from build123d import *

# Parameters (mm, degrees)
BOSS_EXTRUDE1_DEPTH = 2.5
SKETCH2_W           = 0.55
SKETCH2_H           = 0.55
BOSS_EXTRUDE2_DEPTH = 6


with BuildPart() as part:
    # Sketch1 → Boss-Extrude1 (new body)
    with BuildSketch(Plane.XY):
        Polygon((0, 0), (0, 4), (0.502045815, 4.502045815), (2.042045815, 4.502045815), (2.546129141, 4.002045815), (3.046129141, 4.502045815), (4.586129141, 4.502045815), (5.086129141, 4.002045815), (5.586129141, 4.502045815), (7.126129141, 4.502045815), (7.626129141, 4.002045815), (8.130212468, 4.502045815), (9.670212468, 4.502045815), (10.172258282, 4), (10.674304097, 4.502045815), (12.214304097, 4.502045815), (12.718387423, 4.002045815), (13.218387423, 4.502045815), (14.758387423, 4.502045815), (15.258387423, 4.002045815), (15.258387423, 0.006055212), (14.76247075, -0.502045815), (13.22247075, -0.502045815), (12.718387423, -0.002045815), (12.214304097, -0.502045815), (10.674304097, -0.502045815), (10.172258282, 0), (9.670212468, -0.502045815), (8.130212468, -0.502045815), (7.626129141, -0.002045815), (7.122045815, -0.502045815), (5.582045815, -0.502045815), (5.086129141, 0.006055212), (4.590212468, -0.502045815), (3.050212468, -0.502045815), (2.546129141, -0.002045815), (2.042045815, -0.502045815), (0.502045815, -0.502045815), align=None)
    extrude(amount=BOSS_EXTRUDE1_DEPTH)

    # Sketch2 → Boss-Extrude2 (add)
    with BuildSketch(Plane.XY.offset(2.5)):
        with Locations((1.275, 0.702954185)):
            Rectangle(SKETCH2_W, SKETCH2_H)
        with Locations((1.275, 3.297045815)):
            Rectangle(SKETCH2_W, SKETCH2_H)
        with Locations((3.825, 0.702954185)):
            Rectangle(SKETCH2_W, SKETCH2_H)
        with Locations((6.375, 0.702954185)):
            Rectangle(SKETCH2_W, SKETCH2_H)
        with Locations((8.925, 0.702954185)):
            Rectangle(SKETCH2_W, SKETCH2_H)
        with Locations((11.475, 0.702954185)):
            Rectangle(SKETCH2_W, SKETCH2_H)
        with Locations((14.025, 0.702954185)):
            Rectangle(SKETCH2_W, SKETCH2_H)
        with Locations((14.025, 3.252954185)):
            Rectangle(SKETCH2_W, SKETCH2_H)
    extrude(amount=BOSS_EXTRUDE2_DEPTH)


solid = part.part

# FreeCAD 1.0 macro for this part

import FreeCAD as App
import Part
import Sketcher
from FreeCAD import Vector


def add_polygon(sketch, points):
    """Adds a closed chain of lines whose ends are joined by coincident constraints."""
    first, n = sketch.GeometryCount, len(points)
    for a, b in zip(points, points[1:] + points[:1]):
        sketch.addGeometry(Part.LineSegment(App.Vector(*a, 0), App.Vector(*b, 0)), False)
    for i in range(n):
        sketch.addConstraint(Sketcher.Constraint("Coincident", first + i, 2, first + (i + 1) % n, 1))

doc = App.newDocument("Part")
body = doc.addObject("PartDesign::Body", "Body")

sketch1 = doc.addObject("Sketcher::SketchObject", "Sketch")
body.addObject(sketch1)
sketch1.AttachmentSupport = (doc.XY_Plane, [""])
sketch1.MapMode = "FlatFace"
add_polygon(sketch1, [(0, 4), (0, 0), (0.502046, -0.502046), (2.042046, -0.502046), (2.546129, -0.002046), (3.050212, -0.502046), (4.590212, -0.502046), (5.086129, 0.006055), (5.582046, -0.502046), (7.122046, -0.502046), (7.626129, -0.002046), (8.130212, -0.502046), (9.670212, -0.502046), (10.172258, 0), (10.674304, -0.502046), (12.214304, -0.502046), (12.718387, -0.002046), (13.222471, -0.502046), (14.762471, -0.502046), (15.258387, 0.006055), (15.258387, 4.002046), (14.758387, 4.502046), (13.218387, 4.502046), (12.718387, 4.002046), (12.214304, 4.502046), (10.674304, 4.502046), (10.172258, 4), (9.670212, 4.502046), (8.130212, 4.502046), (7.626129, 4.002046), (7.126129, 4.502046), (5.586129, 4.502046), (5.086129, 4.002046), (4.586129, 4.502046), (3.046129, 4.502046), (2.546129, 4.002046), (2.042046, 4.502046), (0.502046, 4.502046)])
sketch1.addConstraint([
    Sketcher.Constraint("Vertical", 0),
    Sketcher.Constraint("Horizontal", 2),
    Sketcher.Constraint("Horizontal", 5),
    Sketcher.Constraint("Horizontal", 8),
    Sketcher.Constraint("Horizontal", 11),
    Sketcher.Constraint("Horizontal", 14),
    Sketcher.Constraint("Horizontal", 17),
    Sketcher.Constraint("Vertical", 19),
    Sketcher.Constraint("Horizontal", 21),
    Sketcher.Constraint("Horizontal", 24),
    Sketcher.Constraint("Horizontal", 27),
    Sketcher.Constraint("Horizontal", 30),
    Sketcher.Constraint("Horizontal", 33),
    Sketcher.Constraint("Horizontal", 36),
    Sketcher.Constraint("Coincident", 0, 2, -1, 1),
    Sketcher.Constraint("PointOnObject", 12, 2, -1),
    Sketcher.Constraint("Parallel", 3, 9),
    Sketcher.Constraint("Parallel", 4, 10),
    Sketcher.Constraint("Perpendicular", 1, 12),
    Sketcher.Constraint("Perpendicular", 12, 13),
    Sketcher.Constraint("Parallel", 9, 15),
    Sketcher.Constraint("Parallel", 10, 16),
    Sketcher.Constraint("Parallel", 6, 18),
    Sketcher.Constraint("Parallel", 13, 20),
    Sketcher.Constraint("Perpendicular", 20, 22),
    Sketcher.Constraint("Parallel", 16, 23),
    Sketcher.Constraint("Parallel", 22, 25),
    Sketcher.Constraint("Perpendicular", 25, 26),
    Sketcher.Constraint("Parallel", 15, 28),
    Sketcher.Constraint("Parallel", 26, 29),
    Sketcher.Constraint("Perpendicular", 29, 31),
    Sketcher.Constraint("Perpendicular", 31, 32),
    Sketcher.Constraint("Perpendicular", 32, 34),
    Sketcher.Constraint("Parallel", 23, 35),
    Sketcher.Constraint("Parallel", 34, 37),
    Sketcher.Constraint("Horizontal", 2, 2, 4, 2),
    Sketcher.Constraint("Horizontal", 5, 2, 7, 2),
    Sketcher.Constraint("Horizontal", 3, 2, 9, 2),
    Sketcher.Constraint("Horizontal", 8, 2, 10, 2),
    Sketcher.Constraint("Horizontal", 11, 2, 13, 2),
    Sketcher.Constraint("Horizontal", 9, 2, 15, 2),
    Sketcher.Constraint("Horizontal", 14, 2, 16, 2),
    Sketcher.Constraint("Horizontal", 6, 2, 18, 2),
    Sketcher.Constraint("Horizontal", 19, 2, 22, 2),
    Sketcher.Constraint("Horizontal", 21, 2, 23, 2),
    Sketcher.Constraint("Horizontal", 24, 2, 26, 2),
    Sketcher.Constraint("Horizontal", 22, 2, 28, 2),
    Sketcher.Constraint("Horizontal", 27, 2, 29, 2),
    Sketcher.Constraint("Horizontal", 28, 2, 31, 2),
    Sketcher.Constraint("Horizontal", 30, 2, 32, 2),
    Sketcher.Constraint("Horizontal", 31, 2, 34, 2),
    Sketcher.Constraint("Horizontal", 33, 2, 35, 2),
    Sketcher.Constraint("Horizontal", 25, 2, 37, 2),
    Sketcher.Constraint("Vertical", 15, 2, 22, 2),
    Sketcher.Constraint("Vertical", 14, 2, 23, 2),
    Sketcher.Constraint("Vertical", 13, 2, 24, 2),
    Sketcher.Constraint("Vertical", 12, 2, 25, 2),
    Sketcher.Constraint("Vertical", 11, 2, 26, 2),
    Sketcher.Constraint("Vertical", 10, 2, 27, 2),
    Sketcher.Constraint("Vertical", 9, 2, 28, 2),
    Sketcher.Constraint("Vertical", 6, 2, 31, 2),
    Sketcher.Constraint("Vertical", 3, 2, 34, 2),
    Sketcher.Constraint("Equal", 2, 5),
    Sketcher.Constraint("Equal", 5, 8),
    Sketcher.Constraint("Equal", 8, 11),
    Sketcher.Constraint("Equal", 11, 14),
    Sketcher.Constraint("Equal", 14, 17),
    Sketcher.Constraint("Equal", 17, 21),
    Sketcher.Constraint("Equal", 27, 30),
    Sketcher.Constraint("Equal", 1, 3),
    Sketcher.Constraint("Equal", 4, 6),
    Sketcher.Constraint("DistanceY", 0, 2, 0, 1, 4.0),
    Sketcher.Constraint("DistanceX", 32, 2, 30, 2, 1.0),
    Sketcher.Constraint("DistanceX", 2, 1, 2, 2, 1.54),
    Sketcher.Constraint("Distance", 1, 0.71),
])
pad1 = doc.addObject("PartDesign::Pad", "Pad")
body.addObject(pad1)
pad1.Profile = sketch1
pad1.Length = 2.5

sketch2 = doc.addObject("Sketcher::SketchObject", "Sketch001")
body.addObject(sketch2)
sketch2.AttachmentSupport = (doc.XY_Plane, [""])
sketch2.MapMode = "FlatFace"
sketch2.AttachmentOffset = App.Placement(Vector(0, 0, 2.5), App.Rotation())
add_polygon(sketch2, [(1, 0.977954), (1, 0.427954), (1.55, 0.427954), (1.55, 0.977954)])
add_polygon(sketch2, [(1, 3.572046), (1, 3.022046), (1.55, 3.022046), (1.55, 3.572046)])
add_polygon(sketch2, [(3.55, 0.977954), (3.55, 0.427954), (4.1, 0.427954), (4.1, 0.977954)])
add_polygon(sketch2, [(6.1, 0.977954), (6.1, 0.427954), (6.65, 0.427954), (6.65, 0.977954)])
add_polygon(sketch2, [(8.65, 0.977954), (8.65, 0.427954), (9.2, 0.427954), (9.2, 0.977954)])
add_polygon(sketch2, [(11.2, 0.977954), (11.2, 0.427954), (11.75, 0.427954), (11.75, 0.977954)])
add_polygon(sketch2, [(13.75, 0.977954), (13.75, 0.427954), (14.3, 0.427954), (14.3, 0.977954)])
add_polygon(sketch2, [(13.75, 3.527954), (13.75, 2.977954), (14.3, 2.977954), (14.3, 3.527954)])
sketch2.addConstraint([
    Sketcher.Constraint("Vertical", 0),
    Sketcher.Constraint("Horizontal", 1),
    Sketcher.Constraint("Vertical", 2),
    Sketcher.Constraint("Horizontal", 3),
    Sketcher.Constraint("Vertical", 4),
    Sketcher.Constraint("Horizontal", 5),
    Sketcher.Constraint("Vertical", 6),
    Sketcher.Constraint("Horizontal", 7),
    Sketcher.Constraint("Vertical", 8),
    Sketcher.Constraint("Horizontal", 9),
    Sketcher.Constraint("Vertical", 10),
    Sketcher.Constraint("Horizontal", 11),
    Sketcher.Constraint("Vertical", 12),
    Sketcher.Constraint("Horizontal", 13),
    Sketcher.Constraint("Vertical", 14),
    Sketcher.Constraint("Horizontal", 15),
    Sketcher.Constraint("Vertical", 16),
    Sketcher.Constraint("Horizontal", 17),
    Sketcher.Constraint("Vertical", 18),
    Sketcher.Constraint("Horizontal", 19),
    Sketcher.Constraint("Vertical", 20),
    Sketcher.Constraint("Horizontal", 21),
    Sketcher.Constraint("Vertical", 22),
    Sketcher.Constraint("Horizontal", 23),
    Sketcher.Constraint("Vertical", 24),
    Sketcher.Constraint("Horizontal", 25),
    Sketcher.Constraint("Vertical", 26),
    Sketcher.Constraint("Horizontal", 27),
    Sketcher.Constraint("Vertical", 28),
    Sketcher.Constraint("Horizontal", 29),
    Sketcher.Constraint("Vertical", 30),
    Sketcher.Constraint("Horizontal", 31),
    Sketcher.Constraint("Horizontal", 1, 2, 8, 2),
    Sketcher.Constraint("Horizontal", 3, 2, 10, 2),
    Sketcher.Constraint("Horizontal", 9, 2, 12, 2),
    Sketcher.Constraint("Horizontal", 11, 2, 14, 2),
    Sketcher.Constraint("Horizontal", 13, 2, 16, 2),
    Sketcher.Constraint("Horizontal", 15, 2, 18, 2),
    Sketcher.Constraint("Horizontal", 17, 2, 20, 2),
    Sketcher.Constraint("Horizontal", 19, 2, 22, 2),
    Sketcher.Constraint("Horizontal", 21, 2, 24, 2),
    Sketcher.Constraint("Horizontal", 23, 2, 26, 2),
    Sketcher.Constraint("Vertical", 3, 2, 4, 2),
    Sketcher.Constraint("Vertical", 2, 2, 5, 2),
    Sketcher.Constraint("Vertical", 27, 2, 28, 2),
    Sketcher.Constraint("Vertical", 26, 2, 29, 2),
    Sketcher.Constraint("Equal", 7, 9),
    Sketcher.Constraint("Equal", 11, 13),
    Sketcher.Constraint("Equal", 15, 17),
    Sketcher.Constraint("Equal", 19, 21),
    Sketcher.Constraint("Equal", 23, 25),
    Sketcher.Constraint("Equal", 31, 0),
    Sketcher.Constraint("Equal", 2, 4),
    Sketcher.Constraint("Equal", 26, 28),
    Sketcher.Constraint("DistanceX", -1, 1, 0, 2, 1.0),
    Sketcher.Constraint("DistanceX", 1, 2, 8, 2, 2.0),
    Sketcher.Constraint("DistanceX", 9, 2, 12, 2, 2.0),
    Sketcher.Constraint("DistanceX", 13, 2, 16, 2, 2.0),
    Sketcher.Constraint("DistanceX", 17, 2, 20, 2, 2.0),
    Sketcher.Constraint("DistanceX", 21, 2, 24, 2, 2.0),
    Sketcher.Constraint("DistanceY", 27, 2, 28, 2, 2.0),
    Sketcher.Constraint("DistanceX", 1, 1, 1, 2, 0.55),
    Sketcher.Constraint("DistanceY", 3, 2, 4, 2, 2.044092),
    Sketcher.Constraint("DistanceY", -1, 1, 0, 2, 0.427954),
])
pad2 = doc.addObject("PartDesign::Pad", "Pad001")
body.addObject(pad2)
pad2.Profile = sketch2
pad2.Length = 6

doc.recompute()
